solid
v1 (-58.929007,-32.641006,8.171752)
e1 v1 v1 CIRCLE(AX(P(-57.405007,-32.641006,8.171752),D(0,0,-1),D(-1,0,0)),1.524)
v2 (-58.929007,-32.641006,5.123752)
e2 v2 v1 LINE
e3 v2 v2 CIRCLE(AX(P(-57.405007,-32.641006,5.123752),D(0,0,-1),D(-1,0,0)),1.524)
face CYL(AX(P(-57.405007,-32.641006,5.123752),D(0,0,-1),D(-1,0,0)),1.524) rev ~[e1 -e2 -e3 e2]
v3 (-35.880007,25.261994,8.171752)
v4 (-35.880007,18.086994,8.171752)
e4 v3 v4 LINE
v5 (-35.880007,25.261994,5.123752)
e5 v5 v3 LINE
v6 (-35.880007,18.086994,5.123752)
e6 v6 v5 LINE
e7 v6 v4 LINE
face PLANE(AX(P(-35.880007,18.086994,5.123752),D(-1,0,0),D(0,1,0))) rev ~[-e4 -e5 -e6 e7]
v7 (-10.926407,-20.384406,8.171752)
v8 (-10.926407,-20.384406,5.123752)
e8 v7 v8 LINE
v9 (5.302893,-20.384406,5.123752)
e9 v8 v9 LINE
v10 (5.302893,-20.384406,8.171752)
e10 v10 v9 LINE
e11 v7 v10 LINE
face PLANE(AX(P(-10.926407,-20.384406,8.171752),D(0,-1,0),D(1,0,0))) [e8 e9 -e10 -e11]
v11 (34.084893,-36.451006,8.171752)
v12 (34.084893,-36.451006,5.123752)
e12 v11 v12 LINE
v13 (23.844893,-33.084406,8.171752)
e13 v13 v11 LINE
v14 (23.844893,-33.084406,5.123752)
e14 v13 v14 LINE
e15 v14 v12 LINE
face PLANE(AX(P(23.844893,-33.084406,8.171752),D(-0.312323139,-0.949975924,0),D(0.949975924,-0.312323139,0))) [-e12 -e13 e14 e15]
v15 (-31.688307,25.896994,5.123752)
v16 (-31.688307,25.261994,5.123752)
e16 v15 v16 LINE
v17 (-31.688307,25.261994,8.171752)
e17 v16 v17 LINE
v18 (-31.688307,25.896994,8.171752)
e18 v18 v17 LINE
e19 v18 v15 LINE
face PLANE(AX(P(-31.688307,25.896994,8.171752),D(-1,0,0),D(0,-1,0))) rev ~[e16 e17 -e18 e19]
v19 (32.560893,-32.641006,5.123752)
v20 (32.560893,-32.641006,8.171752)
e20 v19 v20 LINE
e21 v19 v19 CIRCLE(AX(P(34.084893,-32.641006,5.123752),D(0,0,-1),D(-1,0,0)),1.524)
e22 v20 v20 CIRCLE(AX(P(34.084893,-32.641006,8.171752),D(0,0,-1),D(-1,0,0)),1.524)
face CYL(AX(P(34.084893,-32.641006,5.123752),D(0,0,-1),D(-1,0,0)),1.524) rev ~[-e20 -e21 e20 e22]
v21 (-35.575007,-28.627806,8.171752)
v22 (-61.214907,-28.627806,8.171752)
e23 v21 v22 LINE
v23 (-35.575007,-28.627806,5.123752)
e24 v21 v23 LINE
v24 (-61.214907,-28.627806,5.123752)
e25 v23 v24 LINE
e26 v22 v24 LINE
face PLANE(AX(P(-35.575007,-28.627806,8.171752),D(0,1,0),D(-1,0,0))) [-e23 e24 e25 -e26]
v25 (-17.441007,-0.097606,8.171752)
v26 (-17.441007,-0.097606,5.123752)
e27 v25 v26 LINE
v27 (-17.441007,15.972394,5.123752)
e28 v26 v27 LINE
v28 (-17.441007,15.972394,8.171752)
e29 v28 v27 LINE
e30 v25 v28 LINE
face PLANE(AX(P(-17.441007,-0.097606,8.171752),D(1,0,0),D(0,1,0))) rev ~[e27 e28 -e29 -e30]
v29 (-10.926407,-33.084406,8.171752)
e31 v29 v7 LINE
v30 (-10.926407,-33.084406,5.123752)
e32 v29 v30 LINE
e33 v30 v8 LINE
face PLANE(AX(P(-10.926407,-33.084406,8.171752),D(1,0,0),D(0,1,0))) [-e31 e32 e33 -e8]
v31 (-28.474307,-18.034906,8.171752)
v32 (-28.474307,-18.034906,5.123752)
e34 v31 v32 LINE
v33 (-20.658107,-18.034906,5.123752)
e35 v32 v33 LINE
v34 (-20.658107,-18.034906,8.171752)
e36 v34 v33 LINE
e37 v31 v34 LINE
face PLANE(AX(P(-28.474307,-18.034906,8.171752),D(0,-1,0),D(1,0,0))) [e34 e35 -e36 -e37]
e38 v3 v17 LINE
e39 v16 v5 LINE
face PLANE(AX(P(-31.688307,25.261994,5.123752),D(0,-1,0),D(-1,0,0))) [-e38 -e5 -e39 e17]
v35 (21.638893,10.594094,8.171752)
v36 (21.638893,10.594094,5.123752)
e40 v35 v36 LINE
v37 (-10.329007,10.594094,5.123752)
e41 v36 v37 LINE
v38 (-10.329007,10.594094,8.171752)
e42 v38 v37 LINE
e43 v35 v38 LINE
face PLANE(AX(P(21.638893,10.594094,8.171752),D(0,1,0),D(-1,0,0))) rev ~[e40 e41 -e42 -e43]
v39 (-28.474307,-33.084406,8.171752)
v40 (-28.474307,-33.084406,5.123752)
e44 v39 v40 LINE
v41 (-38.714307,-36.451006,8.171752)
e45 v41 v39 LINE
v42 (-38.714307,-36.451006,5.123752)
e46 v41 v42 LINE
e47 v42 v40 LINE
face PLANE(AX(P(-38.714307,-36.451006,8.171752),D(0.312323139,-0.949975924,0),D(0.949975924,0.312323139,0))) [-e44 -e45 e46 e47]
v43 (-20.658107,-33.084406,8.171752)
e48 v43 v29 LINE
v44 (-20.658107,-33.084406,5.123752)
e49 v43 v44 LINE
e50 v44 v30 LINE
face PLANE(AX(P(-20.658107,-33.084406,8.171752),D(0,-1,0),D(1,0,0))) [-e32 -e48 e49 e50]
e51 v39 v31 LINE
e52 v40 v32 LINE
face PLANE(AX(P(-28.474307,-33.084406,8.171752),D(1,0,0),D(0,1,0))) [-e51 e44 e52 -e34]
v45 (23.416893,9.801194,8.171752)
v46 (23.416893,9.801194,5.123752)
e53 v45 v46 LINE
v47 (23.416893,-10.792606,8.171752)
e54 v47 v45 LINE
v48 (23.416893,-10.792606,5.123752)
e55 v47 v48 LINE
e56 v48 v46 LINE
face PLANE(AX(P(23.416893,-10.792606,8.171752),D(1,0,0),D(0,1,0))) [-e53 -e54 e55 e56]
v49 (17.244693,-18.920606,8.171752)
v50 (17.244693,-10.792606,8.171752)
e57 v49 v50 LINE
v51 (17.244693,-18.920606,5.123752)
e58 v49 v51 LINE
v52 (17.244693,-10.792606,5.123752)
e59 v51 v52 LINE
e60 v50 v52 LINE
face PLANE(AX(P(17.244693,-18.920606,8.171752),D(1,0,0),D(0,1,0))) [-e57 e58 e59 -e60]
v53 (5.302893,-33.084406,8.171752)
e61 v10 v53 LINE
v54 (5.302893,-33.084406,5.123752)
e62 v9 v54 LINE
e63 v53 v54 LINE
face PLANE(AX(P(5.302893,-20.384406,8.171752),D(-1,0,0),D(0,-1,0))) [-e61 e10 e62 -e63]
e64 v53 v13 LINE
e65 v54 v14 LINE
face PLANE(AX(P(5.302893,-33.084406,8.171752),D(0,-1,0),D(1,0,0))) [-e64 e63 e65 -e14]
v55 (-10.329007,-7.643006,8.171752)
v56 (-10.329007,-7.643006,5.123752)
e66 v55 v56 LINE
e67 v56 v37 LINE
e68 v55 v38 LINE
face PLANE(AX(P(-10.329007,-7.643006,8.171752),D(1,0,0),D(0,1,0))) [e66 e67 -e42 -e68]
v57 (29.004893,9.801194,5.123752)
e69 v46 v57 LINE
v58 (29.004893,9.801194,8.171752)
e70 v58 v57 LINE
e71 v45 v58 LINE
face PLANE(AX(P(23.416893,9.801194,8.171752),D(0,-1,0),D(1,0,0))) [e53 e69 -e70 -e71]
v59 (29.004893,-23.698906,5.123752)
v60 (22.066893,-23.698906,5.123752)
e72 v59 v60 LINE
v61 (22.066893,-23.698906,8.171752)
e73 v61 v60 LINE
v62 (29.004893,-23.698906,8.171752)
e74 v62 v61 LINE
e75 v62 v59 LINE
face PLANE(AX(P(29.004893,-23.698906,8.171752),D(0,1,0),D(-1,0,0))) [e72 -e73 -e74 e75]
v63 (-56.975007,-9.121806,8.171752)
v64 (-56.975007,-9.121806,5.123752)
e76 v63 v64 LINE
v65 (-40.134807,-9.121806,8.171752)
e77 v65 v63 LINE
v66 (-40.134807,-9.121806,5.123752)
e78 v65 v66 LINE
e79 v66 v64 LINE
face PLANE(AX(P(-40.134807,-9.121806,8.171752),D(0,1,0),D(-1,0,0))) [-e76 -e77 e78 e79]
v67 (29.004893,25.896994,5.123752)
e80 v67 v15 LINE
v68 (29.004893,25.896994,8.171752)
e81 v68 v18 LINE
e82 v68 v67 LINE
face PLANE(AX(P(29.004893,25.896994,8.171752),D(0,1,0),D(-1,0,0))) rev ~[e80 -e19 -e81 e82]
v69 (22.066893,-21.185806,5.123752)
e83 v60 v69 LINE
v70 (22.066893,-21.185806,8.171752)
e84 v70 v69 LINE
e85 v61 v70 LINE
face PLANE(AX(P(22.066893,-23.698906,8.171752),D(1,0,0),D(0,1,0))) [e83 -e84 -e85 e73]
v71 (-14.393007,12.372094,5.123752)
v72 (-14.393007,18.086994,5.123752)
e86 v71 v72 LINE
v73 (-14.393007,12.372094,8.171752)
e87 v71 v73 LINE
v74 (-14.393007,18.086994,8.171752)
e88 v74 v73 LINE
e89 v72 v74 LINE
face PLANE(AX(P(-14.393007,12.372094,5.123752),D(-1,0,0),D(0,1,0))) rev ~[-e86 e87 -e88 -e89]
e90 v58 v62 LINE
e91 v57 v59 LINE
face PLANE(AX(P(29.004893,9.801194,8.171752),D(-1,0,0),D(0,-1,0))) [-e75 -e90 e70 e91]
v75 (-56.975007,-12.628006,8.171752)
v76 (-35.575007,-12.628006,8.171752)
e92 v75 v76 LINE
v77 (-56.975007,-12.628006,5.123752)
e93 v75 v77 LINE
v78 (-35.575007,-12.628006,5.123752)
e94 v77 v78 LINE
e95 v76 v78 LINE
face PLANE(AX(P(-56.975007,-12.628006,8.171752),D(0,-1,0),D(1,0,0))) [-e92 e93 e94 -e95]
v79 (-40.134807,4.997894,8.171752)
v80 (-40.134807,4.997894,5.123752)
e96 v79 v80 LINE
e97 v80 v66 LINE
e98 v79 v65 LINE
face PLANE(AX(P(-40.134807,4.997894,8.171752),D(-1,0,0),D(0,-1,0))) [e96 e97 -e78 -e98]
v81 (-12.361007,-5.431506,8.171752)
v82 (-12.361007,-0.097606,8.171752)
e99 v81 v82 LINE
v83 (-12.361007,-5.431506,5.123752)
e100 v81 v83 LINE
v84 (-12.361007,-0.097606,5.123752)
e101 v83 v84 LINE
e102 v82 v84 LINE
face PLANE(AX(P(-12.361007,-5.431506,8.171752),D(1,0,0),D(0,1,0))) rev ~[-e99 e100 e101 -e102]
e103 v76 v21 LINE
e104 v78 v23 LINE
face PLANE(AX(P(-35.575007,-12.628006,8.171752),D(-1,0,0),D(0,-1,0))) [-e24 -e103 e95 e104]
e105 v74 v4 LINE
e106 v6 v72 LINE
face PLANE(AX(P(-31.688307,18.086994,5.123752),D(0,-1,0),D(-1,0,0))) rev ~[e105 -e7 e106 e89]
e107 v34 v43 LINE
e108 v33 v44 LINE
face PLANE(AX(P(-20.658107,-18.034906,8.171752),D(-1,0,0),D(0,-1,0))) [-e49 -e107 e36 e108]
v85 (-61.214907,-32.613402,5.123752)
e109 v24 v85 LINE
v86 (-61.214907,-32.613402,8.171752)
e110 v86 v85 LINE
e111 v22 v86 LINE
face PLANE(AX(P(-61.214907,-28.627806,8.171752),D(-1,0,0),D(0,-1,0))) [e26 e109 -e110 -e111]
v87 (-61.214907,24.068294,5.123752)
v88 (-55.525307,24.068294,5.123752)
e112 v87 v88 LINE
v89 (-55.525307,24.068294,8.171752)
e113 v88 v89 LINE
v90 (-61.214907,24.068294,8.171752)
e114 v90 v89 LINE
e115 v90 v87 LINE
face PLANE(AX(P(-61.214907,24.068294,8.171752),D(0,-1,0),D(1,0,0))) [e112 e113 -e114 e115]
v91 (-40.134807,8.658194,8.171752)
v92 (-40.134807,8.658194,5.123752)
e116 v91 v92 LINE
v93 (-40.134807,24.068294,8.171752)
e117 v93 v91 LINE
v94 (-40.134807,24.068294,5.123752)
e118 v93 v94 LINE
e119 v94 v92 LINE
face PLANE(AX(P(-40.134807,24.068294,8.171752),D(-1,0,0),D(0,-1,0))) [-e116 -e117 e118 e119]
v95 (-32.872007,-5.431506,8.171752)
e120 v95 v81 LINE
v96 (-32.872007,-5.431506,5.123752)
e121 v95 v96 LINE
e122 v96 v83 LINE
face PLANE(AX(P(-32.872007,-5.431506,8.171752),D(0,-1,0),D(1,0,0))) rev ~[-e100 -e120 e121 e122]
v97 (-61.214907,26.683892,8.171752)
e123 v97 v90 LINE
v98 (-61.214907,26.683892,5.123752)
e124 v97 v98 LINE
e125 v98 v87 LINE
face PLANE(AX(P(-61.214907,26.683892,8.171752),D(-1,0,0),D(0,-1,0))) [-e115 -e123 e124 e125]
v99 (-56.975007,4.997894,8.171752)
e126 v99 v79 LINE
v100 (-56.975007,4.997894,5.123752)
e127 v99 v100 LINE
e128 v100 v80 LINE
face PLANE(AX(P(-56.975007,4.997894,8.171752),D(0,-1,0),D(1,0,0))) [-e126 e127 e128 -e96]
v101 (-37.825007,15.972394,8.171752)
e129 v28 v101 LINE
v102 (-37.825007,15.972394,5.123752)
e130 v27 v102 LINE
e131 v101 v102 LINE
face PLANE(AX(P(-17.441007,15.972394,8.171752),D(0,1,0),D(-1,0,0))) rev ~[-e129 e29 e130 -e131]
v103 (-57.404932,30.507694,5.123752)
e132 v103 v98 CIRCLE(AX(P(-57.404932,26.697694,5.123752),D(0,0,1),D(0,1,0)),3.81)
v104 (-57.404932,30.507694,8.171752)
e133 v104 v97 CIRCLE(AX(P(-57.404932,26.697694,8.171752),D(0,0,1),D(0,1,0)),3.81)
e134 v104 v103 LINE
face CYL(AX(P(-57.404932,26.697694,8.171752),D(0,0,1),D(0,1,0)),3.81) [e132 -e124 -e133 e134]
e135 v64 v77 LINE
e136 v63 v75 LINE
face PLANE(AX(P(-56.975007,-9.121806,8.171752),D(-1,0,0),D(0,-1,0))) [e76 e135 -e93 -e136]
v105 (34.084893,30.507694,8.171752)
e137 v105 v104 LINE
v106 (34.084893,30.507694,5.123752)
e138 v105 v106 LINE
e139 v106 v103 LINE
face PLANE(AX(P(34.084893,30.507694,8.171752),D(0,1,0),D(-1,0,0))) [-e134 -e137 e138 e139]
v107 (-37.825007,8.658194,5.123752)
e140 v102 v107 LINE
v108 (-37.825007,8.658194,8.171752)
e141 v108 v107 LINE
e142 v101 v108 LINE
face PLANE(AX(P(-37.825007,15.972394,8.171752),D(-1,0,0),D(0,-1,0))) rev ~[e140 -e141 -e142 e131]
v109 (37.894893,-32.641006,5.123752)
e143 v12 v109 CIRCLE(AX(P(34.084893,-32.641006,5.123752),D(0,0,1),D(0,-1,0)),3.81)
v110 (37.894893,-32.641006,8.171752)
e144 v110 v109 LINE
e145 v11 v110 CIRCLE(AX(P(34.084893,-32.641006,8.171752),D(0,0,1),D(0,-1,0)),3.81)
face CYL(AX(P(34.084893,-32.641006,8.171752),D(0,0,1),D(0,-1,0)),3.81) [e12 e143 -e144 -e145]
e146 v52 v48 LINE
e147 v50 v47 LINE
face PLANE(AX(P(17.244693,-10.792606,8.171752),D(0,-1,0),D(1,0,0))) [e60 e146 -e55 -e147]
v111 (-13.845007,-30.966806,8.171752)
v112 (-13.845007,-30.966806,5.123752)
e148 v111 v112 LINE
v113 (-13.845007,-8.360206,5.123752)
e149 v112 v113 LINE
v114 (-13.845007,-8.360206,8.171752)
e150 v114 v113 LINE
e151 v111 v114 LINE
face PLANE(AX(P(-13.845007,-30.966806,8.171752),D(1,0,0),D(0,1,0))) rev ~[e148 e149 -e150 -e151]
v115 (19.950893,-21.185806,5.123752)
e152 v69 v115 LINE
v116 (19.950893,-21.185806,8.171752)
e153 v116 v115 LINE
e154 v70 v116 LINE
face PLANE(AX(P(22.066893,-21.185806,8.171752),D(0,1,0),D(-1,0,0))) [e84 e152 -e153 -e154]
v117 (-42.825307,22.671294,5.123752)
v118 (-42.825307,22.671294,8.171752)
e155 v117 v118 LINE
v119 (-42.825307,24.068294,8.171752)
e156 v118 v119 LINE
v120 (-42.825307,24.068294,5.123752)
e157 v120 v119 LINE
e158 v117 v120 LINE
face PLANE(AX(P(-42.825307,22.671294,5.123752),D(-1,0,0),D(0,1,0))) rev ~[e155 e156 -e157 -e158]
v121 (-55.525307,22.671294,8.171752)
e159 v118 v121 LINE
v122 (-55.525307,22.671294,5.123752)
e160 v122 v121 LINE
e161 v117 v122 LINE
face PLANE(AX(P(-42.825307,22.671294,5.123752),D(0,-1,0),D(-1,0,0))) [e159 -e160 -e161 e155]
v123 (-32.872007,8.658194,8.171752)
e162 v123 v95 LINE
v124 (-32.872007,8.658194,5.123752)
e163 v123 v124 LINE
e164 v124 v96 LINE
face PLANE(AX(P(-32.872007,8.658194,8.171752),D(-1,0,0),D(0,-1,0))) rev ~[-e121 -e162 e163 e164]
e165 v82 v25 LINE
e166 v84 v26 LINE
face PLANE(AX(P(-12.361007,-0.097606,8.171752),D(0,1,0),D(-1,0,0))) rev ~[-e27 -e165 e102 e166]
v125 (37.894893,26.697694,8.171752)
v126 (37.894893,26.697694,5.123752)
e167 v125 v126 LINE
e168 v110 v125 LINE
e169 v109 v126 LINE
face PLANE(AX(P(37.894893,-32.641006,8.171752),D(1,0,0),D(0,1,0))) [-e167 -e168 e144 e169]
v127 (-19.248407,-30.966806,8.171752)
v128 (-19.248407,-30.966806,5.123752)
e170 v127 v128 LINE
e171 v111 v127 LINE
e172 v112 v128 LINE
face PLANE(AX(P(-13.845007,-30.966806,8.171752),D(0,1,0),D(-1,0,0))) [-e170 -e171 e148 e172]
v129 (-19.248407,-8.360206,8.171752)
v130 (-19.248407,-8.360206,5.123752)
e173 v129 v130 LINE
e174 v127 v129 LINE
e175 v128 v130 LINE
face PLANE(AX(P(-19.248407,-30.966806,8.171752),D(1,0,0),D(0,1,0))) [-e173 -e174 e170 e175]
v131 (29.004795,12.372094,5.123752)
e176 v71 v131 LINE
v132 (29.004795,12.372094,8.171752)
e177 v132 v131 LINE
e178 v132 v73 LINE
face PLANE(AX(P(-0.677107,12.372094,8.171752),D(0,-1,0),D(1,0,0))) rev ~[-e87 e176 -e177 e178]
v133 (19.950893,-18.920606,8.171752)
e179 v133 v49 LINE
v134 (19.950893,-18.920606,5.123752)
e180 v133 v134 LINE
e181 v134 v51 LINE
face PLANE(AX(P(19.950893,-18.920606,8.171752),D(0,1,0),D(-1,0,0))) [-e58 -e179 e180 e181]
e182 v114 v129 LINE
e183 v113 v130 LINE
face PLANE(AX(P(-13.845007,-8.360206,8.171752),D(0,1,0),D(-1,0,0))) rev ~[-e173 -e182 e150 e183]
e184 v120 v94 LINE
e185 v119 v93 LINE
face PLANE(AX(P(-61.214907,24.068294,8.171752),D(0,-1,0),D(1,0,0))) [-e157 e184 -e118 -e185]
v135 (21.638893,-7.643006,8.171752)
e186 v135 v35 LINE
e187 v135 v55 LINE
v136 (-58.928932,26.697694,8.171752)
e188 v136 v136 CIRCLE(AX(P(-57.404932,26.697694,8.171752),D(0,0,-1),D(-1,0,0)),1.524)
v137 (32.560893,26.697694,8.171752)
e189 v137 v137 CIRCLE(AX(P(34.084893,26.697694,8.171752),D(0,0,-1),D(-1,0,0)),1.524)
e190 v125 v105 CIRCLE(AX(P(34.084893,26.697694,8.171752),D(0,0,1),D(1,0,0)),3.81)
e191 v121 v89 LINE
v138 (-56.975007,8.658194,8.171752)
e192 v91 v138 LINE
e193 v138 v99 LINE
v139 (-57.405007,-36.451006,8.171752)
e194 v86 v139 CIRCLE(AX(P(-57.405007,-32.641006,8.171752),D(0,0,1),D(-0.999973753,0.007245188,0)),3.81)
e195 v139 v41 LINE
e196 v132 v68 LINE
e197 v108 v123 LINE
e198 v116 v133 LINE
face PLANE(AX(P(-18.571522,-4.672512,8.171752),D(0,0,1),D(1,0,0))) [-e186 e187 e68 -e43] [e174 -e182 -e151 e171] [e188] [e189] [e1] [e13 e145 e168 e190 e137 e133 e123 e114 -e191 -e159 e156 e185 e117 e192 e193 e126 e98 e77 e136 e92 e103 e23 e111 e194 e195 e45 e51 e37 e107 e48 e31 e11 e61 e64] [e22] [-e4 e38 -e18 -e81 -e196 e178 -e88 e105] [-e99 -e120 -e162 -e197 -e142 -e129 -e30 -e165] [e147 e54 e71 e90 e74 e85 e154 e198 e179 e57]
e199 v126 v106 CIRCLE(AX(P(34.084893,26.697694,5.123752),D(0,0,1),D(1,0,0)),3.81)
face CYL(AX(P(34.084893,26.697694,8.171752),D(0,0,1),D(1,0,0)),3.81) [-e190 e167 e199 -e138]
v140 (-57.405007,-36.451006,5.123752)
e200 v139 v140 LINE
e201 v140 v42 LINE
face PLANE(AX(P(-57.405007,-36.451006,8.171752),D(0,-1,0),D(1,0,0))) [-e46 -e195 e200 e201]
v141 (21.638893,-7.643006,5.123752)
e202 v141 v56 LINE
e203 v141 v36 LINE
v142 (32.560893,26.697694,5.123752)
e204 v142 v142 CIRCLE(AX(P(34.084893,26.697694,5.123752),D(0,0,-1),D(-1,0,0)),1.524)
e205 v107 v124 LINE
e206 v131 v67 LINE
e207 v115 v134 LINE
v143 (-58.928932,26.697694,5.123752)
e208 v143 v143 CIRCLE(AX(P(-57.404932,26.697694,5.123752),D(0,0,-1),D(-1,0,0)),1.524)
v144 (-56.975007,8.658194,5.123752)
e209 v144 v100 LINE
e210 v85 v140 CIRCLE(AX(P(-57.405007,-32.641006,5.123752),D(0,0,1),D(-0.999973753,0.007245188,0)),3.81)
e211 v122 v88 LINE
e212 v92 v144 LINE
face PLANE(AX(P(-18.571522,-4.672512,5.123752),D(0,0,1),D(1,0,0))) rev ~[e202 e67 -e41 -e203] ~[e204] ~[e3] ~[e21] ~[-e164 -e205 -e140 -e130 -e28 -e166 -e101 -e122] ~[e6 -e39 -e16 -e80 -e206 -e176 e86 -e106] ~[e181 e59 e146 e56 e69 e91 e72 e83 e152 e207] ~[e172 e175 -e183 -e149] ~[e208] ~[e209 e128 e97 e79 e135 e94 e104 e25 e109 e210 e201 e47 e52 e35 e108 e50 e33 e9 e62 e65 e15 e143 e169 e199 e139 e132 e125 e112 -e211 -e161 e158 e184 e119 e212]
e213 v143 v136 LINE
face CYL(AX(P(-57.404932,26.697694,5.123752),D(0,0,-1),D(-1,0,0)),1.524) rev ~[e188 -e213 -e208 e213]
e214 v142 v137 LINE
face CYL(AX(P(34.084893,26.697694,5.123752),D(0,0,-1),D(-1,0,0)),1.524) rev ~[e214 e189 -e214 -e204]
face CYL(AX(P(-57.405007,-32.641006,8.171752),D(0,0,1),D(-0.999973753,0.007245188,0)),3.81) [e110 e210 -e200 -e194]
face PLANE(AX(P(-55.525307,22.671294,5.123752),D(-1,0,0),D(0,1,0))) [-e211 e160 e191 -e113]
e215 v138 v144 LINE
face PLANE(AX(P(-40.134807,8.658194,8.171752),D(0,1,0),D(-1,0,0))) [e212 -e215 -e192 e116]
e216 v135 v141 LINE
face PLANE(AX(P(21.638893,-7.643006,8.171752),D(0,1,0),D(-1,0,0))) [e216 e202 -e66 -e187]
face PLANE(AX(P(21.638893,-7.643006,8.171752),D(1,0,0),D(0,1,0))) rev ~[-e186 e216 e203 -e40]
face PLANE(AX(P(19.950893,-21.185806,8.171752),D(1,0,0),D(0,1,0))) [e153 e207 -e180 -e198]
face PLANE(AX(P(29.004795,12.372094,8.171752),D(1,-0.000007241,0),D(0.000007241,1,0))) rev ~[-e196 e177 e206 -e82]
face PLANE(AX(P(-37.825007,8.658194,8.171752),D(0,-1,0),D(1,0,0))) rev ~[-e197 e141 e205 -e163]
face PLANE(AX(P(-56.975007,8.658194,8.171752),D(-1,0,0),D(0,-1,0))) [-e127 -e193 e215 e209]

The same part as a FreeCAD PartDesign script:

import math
import FreeCAD as App
import Part
import Sketcher
from FreeCAD import Vector
Q = App.Units.Quantity


def add_polygon(sketch, points):
    """Adds a closed chain of lines whose ends are joined by coincident constraints."""
    first, n = sketch.GeometryCount, len(points)
    for a, b in zip(points, points[1:] + points[:1]):
        sketch.addGeometry(Part.LineSegment(App.Vector(*a, 0), App.Vector(*b, 0)), False)
    for i in range(n):
        sketch.addConstraint(Sketcher.Constraint("Coincident", first + i, 2, first + (i + 1) % n, 1))

doc = App.newDocument("Part")
params = doc.addObject("Spreadsheet::Sheet", "Params")
for row, (alias, value) in enumerate([
    ("sketch1_radius", "0.15 in"),
    ("sketch1_width", "0.2 in"),
    ("sketch1_height", "0.5 in"),
    ("sketch1_width2", "0.73 in"),
    ("sketch1_width3", "0.22 in"),
    ("pad1_length", "0.12 in"),
    ("sketch3_diameter", "0.12 in"),
    ("sketch5_width", "0.5 in"),
    ("sketch5_height", "0.055 in"),
    ("pad2_length", "0.12 in"),
], start=1):
    params.set(f"A{row}", alias)
    params.set(f"B{row}", "=" + value)
    params.setAlias(f"B{row}", alias)

body = doc.addObject("PartDesign::Body", "Body")

sketch1 = body.newObject("Sketcher::SketchObject", "Sketch")
sketch1.AttachmentSupport = (doc.getObject("XY_Plane"), [""])
sketch1.MapMode = "FlatFace"
sketch1.AttachmentOffset = App.Placement(Vector(0, 0, 8.171752), App.Rotation())
sketch1.addGeometry(Part.LineSegment(Vector(34.1, -36.5, 0), Vector(23.8, -33.1, 0)), False)
sketch1.addGeometry(Part.LineSegment(Vector(23.8, -33.1, 0), Vector(5.3, -33.1, 0)), False)
sketch1.addGeometry(Part.LineSegment(Vector(5.3, -33.1, 0), Vector(5.3, -20.4, 0)), False)
sketch1.addGeometry(Part.LineSegment(Vector(5.3, -20.4, 0), Vector(-10.9, -20.4, 0)), False)
sketch1.addGeometry(Part.LineSegment(Vector(-10.9, -20.4, 0), Vector(-10.9, -33.1, 0)), False)
sketch1.addGeometry(Part.LineSegment(Vector(-10.9, -33.1, 0), Vector(-20.7, -33.1, 0)), False)
sketch1.addGeometry(Part.LineSegment(Vector(-20.7, -33.1, 0), Vector(-20.7, -18, 0)), False)
sketch1.addGeometry(Part.LineSegment(Vector(-20.7, -18, 0), Vector(-28.5, -18, 0)), False)
sketch1.addGeometry(Part.LineSegment(Vector(-28.5, -18, 0), Vector(-28.5, -33.1, 0)), False)
sketch1.addGeometry(Part.LineSegment(Vector(-28.5, -33.1, 0), Vector(-38.7, -36.5, 0)), False)
sketch1.addGeometry(Part.LineSegment(Vector(-38.7, -36.5, 0), Vector(-57.4, -36.5, 0)), False)
sketch1.addGeometry(Part.ArcOfCircle(Part.Circle(Vector(-57.4, -32.6, 0), Vector(0, 0, 1), 3.8), math.radians(180), math.radians(270)), False)
sketch1.addGeometry(Part.LineSegment(Vector(-61.2, -32.6, 0), Vector(-61.2, -28.6, 0)), False)
sketch1.addGeometry(Part.LineSegment(Vector(-61.2, -28.6, 0), Vector(-35.6, -28.6, 0)), False)
sketch1.addGeometry(Part.LineSegment(Vector(-35.6, -28.6, 0), Vector(-35.6, -12.6, 0)), False)
sketch1.addGeometry(Part.LineSegment(Vector(-35.6, -12.6, 0), Vector(-57, -12.6, 0)), False)
sketch1.addGeometry(Part.LineSegment(Vector(-57, -12.6, 0), Vector(-57, -9.1, 0)), False)
sketch1.addGeometry(Part.LineSegment(Vector(-57, -9.1, 0), Vector(-40.1, -9.1, 0)), False)
sketch1.addGeometry(Part.LineSegment(Vector(-40.1, -9.1, 0), Vector(-40.1, 5, 0)), False)
sketch1.addGeometry(Part.LineSegment(Vector(-40.1, 5, 0), Vector(-57, 5, 0)), False)
sketch1.addGeometry(Part.LineSegment(Vector(-57, 5, 0), Vector(-57, 8.7, 0)), False)
sketch1.addGeometry(Part.LineSegment(Vector(-57, 8.7, 0), Vector(-40.1, 8.7, 0)), False)
sketch1.addGeometry(Part.LineSegment(Vector(-40.1, 8.7, 0), Vector(-40.1, 24.1, 0)), False)
sketch1.addGeometry(Part.LineSegment(Vector(-40.1, 24.1, 0), Vector(-61.2, 24.1, 0)), False)
sketch1.addGeometry(Part.LineSegment(Vector(-61.2, 24.1, 0), Vector(-61.2, 26.7, 0)), False)
sketch1.addGeometry(Part.ArcOfCircle(Part.Circle(Vector(-57.4, 26.7, 0), Vector(0, 0, 1), 3.8), math.radians(90), math.radians(180)), False)
sketch1.addGeometry(Part.LineSegment(Vector(-57.4, 30.5, 0), Vector(34.1, 30.5, 0)), False)
sketch1.addGeometry(Part.ArcOfCircle(Part.Circle(Vector(34.1, 26.7, 0), Vector(0, 0, 1), 3.8), math.radians(0), math.radians(90)), False)
sketch1.addGeometry(Part.LineSegment(Vector(37.9, 26.7, 0), Vector(37.9, -32.6, 0)), False)
sketch1.addGeometry(Part.ArcOfCircle(Part.Circle(Vector(34.1, -32.6, 0), Vector(0, 0, 1), 3.8), math.radians(-90), math.radians(0)), False)
add_polygon(sketch1, [(-13.8, -31), (-13.8, -8.4), (-19.2, -8.4), (-19.2, -31)])
add_polygon(sketch1, [(29, -23.7), (29, 9.8), (23.4, 9.8), (23.4, -10.8), (17.2, -10.8), (17.2, -18.9), (20, -18.9), (20, -21.2), (22.1, -21.2), (22.1, -23.7)])
add_polygon(sketch1, [(-12.4, -0.1), (-17.4, -0.1), (-17.4, 16), (-37.8, 16), (-37.8, 8.7), (-32.9, 8.7), (-32.9, -5.4), (-12.4, -5.4)])
add_polygon(sketch1, [(21.6, -7.6), (21.6, 10.6), (-10.3, 10.6), (-10.3, -7.6)])
add_polygon(sketch1, [(-0.7, 12.4), (29, 12.4), (29, 25.9), (-31.7, 25.9), (-31.7, 18.1), (-0.7, 18.1)])
sketch1.addConstraint(Sketcher.Constraint("Coincident", 0, 2, 1, 1))
sketch1.addConstraint(Sketcher.Constraint("Coincident", 1, 2, 2, 1))
sketch1.addConstraint(Sketcher.Constraint("Coincident", 2, 2, 3, 1))
sketch1.addConstraint(Sketcher.Constraint("Coincident", 3, 2, 4, 1))
sketch1.addConstraint(Sketcher.Constraint("Coincident", 4, 2, 5, 1))
sketch1.addConstraint(Sketcher.Constraint("Coincident", 5, 2, 6, 1))
sketch1.addConstraint(Sketcher.Constraint("Coincident", 6, 2, 7, 1))
sketch1.addConstraint(Sketcher.Constraint("Coincident", 7, 2, 8, 1))
sketch1.addConstraint(Sketcher.Constraint("Coincident", 8, 2, 9, 1))
sketch1.addConstraint(Sketcher.Constraint("Coincident", 9, 2, 10, 1))
sketch1.addConstraint(Sketcher.Constraint("Tangent", 10, 2, 11, 2))
sketch1.addConstraint(Sketcher.Constraint("Coincident", 11, 1, 12, 1))
sketch1.addConstraint(Sketcher.Constraint("Coincident", 12, 2, 13, 1))
sketch1.addConstraint(Sketcher.Constraint("Coincident", 13, 2, 14, 1))
sketch1.addConstraint(Sketcher.Constraint("Coincident", 14, 2, 15, 1))
sketch1.addConstraint(Sketcher.Constraint("Coincident", 15, 2, 16, 1))
sketch1.addConstraint(Sketcher.Constraint("Coincident", 16, 2, 17, 1))
sketch1.addConstraint(Sketcher.Constraint("Coincident", 17, 2, 18, 1))
sketch1.addConstraint(Sketcher.Constraint("Coincident", 18, 2, 19, 1))
sketch1.addConstraint(Sketcher.Constraint("Coincident", 19, 2, 20, 1))
sketch1.addConstraint(Sketcher.Constraint("Coincident", 20, 2, 21, 1))
sketch1.addConstraint(Sketcher.Constraint("Coincident", 21, 2, 22, 1))
sketch1.addConstraint(Sketcher.Constraint("Coincident", 22, 2, 23, 1))
sketch1.addConstraint(Sketcher.Constraint("Coincident", 23, 2, 24, 1))
sketch1.addConstraint(Sketcher.Constraint("Coincident", 24, 2, 25, 2))
sketch1.addConstraint(Sketcher.Constraint("Tangent", 25, 1, 26, 1))
sketch1.addConstraint(Sketcher.Constraint("Tangent", 26, 2, 27, 2))
sketch1.addConstraint(Sketcher.Constraint("Tangent", 27, 1, 28, 1))
sketch1.addConstraint(Sketcher.Constraint("Tangent", 28, 2, 29, 2))
sketch1.addConstraint(Sketcher.Constraint("Coincident", 29, 1, 0, 1))
sketch1.addConstraint(Sketcher.Constraint("Horizontal", 1))
sketch1.addConstraint(Sketcher.Constraint("Vertical", 2))
sketch1.addConstraint(Sketcher.Constraint("Horizontal", 3))
sketch1.addConstraint(Sketcher.Constraint("Vertical", 4))
sketch1.addConstraint(Sketcher.Constraint("Horizontal", 5))
sketch1.addConstraint(Sketcher.Constraint("Vertical", 6))
sketch1.addConstraint(Sketcher.Constraint("Horizontal", 7))
sketch1.addConstraint(Sketcher.Constraint("Vertical", 8))
sketch1.addConstraint(Sketcher.Constraint("Horizontal", 10))
sketch1.addConstraint(Sketcher.Constraint("Vertical", 12))
sketch1.addConstraint(Sketcher.Constraint("Horizontal", 13))
sketch1.addConstraint(Sketcher.Constraint("Vertical", 14))
sketch1.addConstraint(Sketcher.Constraint("Horizontal", 15))
sketch1.addConstraint(Sketcher.Constraint("Vertical", 16))
sketch1.addConstraint(Sketcher.Constraint("Horizontal", 17))
sketch1.addConstraint(Sketcher.Constraint("Vertical", 18))
sketch1.addConstraint(Sketcher.Constraint("Horizontal", 19))
sketch1.addConstraint(Sketcher.Constraint("Vertical", 20))
sketch1.addConstraint(Sketcher.Constraint("Horizontal", 21))
sketch1.addConstraint(Sketcher.Constraint("Vertical", 22))
sketch1.addConstraint(Sketcher.Constraint("Horizontal", 23))
sketch1.addConstraint(Sketcher.Constraint("Vertical", 24))
sketch1.addConstraint(Sketcher.Constraint("Horizontal", 26))
sketch1.addConstraint(Sketcher.Constraint("Vertical", 28))
sketch1.addConstraint(Sketcher.Constraint("Vertical", 30))
sketch1.addConstraint(Sketcher.Constraint("Horizontal", 31))
sketch1.addConstraint(Sketcher.Constraint("Vertical", 32))
sketch1.addConstraint(Sketcher.Constraint("Horizontal", 33))
sketch1.addConstraint(Sketcher.Constraint("Vertical", 34))
sketch1.addConstraint(Sketcher.Constraint("Horizontal", 35))
sketch1.addConstraint(Sketcher.Constraint("Vertical", 36))
sketch1.addConstraint(Sketcher.Constraint("Horizontal", 37))
sketch1.addConstraint(Sketcher.Constraint("Vertical", 38))
sketch1.addConstraint(Sketcher.Constraint("Horizontal", 39))
sketch1.addConstraint(Sketcher.Constraint("Vertical", 40))
sketch1.addConstraint(Sketcher.Constraint("Horizontal", 41))
sketch1.addConstraint(Sketcher.Constraint("Vertical", 42))
sketch1.addConstraint(Sketcher.Constraint("Horizontal", 43))
sketch1.addConstraint(Sketcher.Constraint("Horizontal", 44))
sketch1.addConstraint(Sketcher.Constraint("Vertical", 45))
sketch1.addConstraint(Sketcher.Constraint("Horizontal", 46))
sketch1.addConstraint(Sketcher.Constraint("Vertical", 47))
sketch1.addConstraint(Sketcher.Constraint("Horizontal", 48))
sketch1.addConstraint(Sketcher.Constraint("Vertical", 49))
sketch1.addConstraint(Sketcher.Constraint("Horizontal", 50))
sketch1.addConstraint(Sketcher.Constraint("Vertical", 51))
sketch1.addConstraint(Sketcher.Constraint("Vertical", 52))
sketch1.addConstraint(Sketcher.Constraint("Horizontal", 53))
sketch1.addConstraint(Sketcher.Constraint("Vertical", 54))
sketch1.addConstraint(Sketcher.Constraint("Horizontal", 55))
sketch1.addConstraint(Sketcher.Constraint("Horizontal", 56))
sketch1.addConstraint(Sketcher.Constraint("Horizontal", 58))
sketch1.addConstraint(Sketcher.Constraint("Vertical", 59))
sketch1.addConstraint(Sketcher.Constraint("Horizontal", 60))
sketch1.addConstraint(Sketcher.Constraint("Vertical", 61))
sketch1.addConstraint(Sketcher.Constraint("Equal", 11, 25))
sketch1.addConstraint(Sketcher.Constraint("Equal", 25, 27))
sketch1.addConstraint(Sketcher.Constraint("Equal", 27, 29))
sketch1.addConstraint(Sketcher.Constraint("Horizontal", 11, 3, 29, 3))
sketch1.addConstraint(Sketcher.Constraint("Horizontal", 1, 2, 4, 2))
sketch1.addConstraint(Sketcher.Constraint("Horizontal", 5, 2, 8, 2))
sketch1.addConstraint(Sketcher.Constraint("Horizontal", 21, 2, 47, 2))
sketch1.addConstraint(Sketcher.Constraint("Vertical", 16, 2, 19, 2))
sketch1.addConstraint(Sketcher.Constraint("Vertical", 18, 2, 21, 2))
sketch1.addConstraint(Sketcher.Constraint("Vertical", 12, 2, 23, 2))
sketch1.addConstraint(Sketcher.Constraint("Vertical", 26, 2, 29, 1))
sketch1.addConstraint(Sketcher.Constraint("Vertical", 43, 2, 57, 2))
sketch1.addConstraint(Sketcher.Constraint("Equal", 0, 9))
sketch1.addConstraint(Sketcher.Constraint("Radius", 11, Q("0.15 in")))
sketch1.addConstraint(Sketcher.Constraint("DistanceX", 44, 2, 44, 1, Q("0.2 in")))
sketch1.addConstraint(Sketcher.Constraint("DistanceY", 2, 1, 2, 2, Q("0.5 in")))
sketch1.addConstraint(Sketcher.Constraint("DistanceX", 1, 2, 1, 1, Q("0.73 in")))
sketch1.addConstraint(Sketcher.Constraint("DistanceX", 35, 2, 35, 1, Q("0.22 in")))
sketch1.addConstraint(Sketcher.Constraint("DistanceY", 38, 2, 38, 1, Q("0.32 in")))
sketch1.addConstraint(Sketcher.Constraint("DistanceX", 17, 1, 17, 2, Q("0.663 in")))
sketch1.addConstraint(Sketcher.Constraint("DistanceX", 37, 2, 37, 1, Q("0.243 in")))
sketch1.addConstraint(Sketcher.Constraint("DistanceX", 48, 1, 48, 2, Q("0.195 in")))
sketch1.addConstraint(Sketcher.Constraint("DistanceY", 6, 1, 6, 2, Q("0.5925 in")))
sketch1.addConstraint(Sketcher.Constraint("DistanceX", 3, 2, 3, 1, Q("16.2293 mm")))
sketch1.addConstraint(Sketcher.Constraint("DistanceX", 5, 2, 5, 1, Q("9.7317 mm")))
sketch1.addConstraint(Sketcher.Constraint("DistanceX", 7, 2, 7, 1, Q("7.8162 mm")))
sketch1.addConstraint(Sketcher.Constraint("DistanceX", 10, 2, 10, 1, Q("18.6907 mm")))
sketch1.addConstraint(Sketcher.Constraint("DistanceX", 13, 1, 13, 2, Q("25.6399 mm")))
sketch1.addConstraint(Sketcher.Constraint("DistanceX", 15, 2, 15, 1, Q("21.4 mm")))
sketch1.addConstraint(Sketcher.Constraint("DistanceX", 31, 2, 31, 1, Q("5.4034 mm")))
sketch1.addConstraint(Sketcher.Constraint("DistanceX", 39, 1, 39, 2, Q("2.7062 mm")))
sketch1.addConstraint(Sketcher.Constraint("DistanceX", 41, 1, 41, 2, Q("2.116 mm")))
sketch1.addConstraint(Sketcher.Constraint("DistanceX", 46, 2, 46, 1, Q("20.384 mm")))
sketch1.addConstraint(Sketcher.Constraint("DistanceX", 53, 2, 53, 1, Q("31.9679 mm")))
sketch1.addConstraint(Sketcher.Constraint("DistanceX", 58, 2, 58, 1, Q("60.6932 mm")))
sketch1.addConstraint(Sketcher.Constraint("DistanceX", 60, 1, 60, 2, Q("31.0112 mm")))
sketch1.addConstraint(Sketcher.Constraint("DistanceY", 14, 1, 14, 2, Q("15.9998 mm")))
sketch1.addConstraint(Sketcher.Constraint("DistanceY", 16, 1, 16, 2, Q("3.5062 mm")))
sketch1.addConstraint(Sketcher.Constraint("DistanceY", 18, 1, 18, 2, Q("14.1197 mm")))
sketch1.addConstraint(Sketcher.Constraint("DistanceY", 20, 1, 20, 2, Q("3.6603 mm")))
sketch1.addConstraint(Sketcher.Constraint("DistanceY", 22, 1, 22, 2, Q("15.4101 mm")))
sketch1.addConstraint(Sketcher.Constraint("DistanceY", 28, 2, 28, 1, Q("59.3387 mm")))
sketch1.addConstraint(Sketcher.Constraint("DistanceY", 30, 1, 30, 2, Q("22.6066 mm")))
sketch1.addConstraint(Sketcher.Constraint("DistanceY", 34, 1, 34, 2, Q("33.5001 mm")))
sketch1.addConstraint(Sketcher.Constraint("DistanceY", 36, 2, 36, 1, Q("20.5938 mm")))
sketch1.addConstraint(Sketcher.Constraint("DistanceY", 40, 2, 40, 1, Q("2.2652 mm")))
sketch1.addConstraint(Sketcher.Constraint("DistanceY", 45, 1, 45, 2, Q("16.07 mm")))
sketch1.addConstraint(Sketcher.Constraint("DistanceY", 47, 2, 47, 1, Q("7.3142 mm")))
sketch1.addConstraint(Sketcher.Constraint("DistanceY", 49, 2, 49, 1, Q("14.0897 mm")))
sketch1.addConstraint(Sketcher.Constraint("DistanceY", 52, 1, 52, 2, Q("18.2371 mm")))
sketch1.addConstraint(Sketcher.Constraint("DistanceY", 59, 2, 59, 1, Q("7.81 mm")))
sketch1.addConstraint(Sketcher.Constraint("DistanceY", 61, 2, 61, 1, Q("5.7149 mm")))
sketch1.addConstraint(Sketcher.Constraint("DistanceY", 11, 1, -1, 1, Q("32.613402 mm")))
sketch1.addConstraint(Sketcher.Constraint("Distance", 0, Q("10.779221 mm")))
sketch1.addConstraint(Sketcher.Constraint("DistanceX", 26, 1, 26, 2, Q("91.489825 mm")))
sketch1.addConstraint(Sketcher.Constraint("DistanceX", 56, 1, 56, 2, Q("29.681902 mm")))
sketch1.addConstraint(Sketcher.Constraint("DistanceY", 12, 1, 12, 2, Q("3.985596 mm")))
sketch1.addConstraint(Sketcher.Constraint("DistanceY", 24, 1, 24, 2, Q("2.615598 mm")))
sketch1.addConstraint(Sketcher.Constraint("DistanceX", 11, 3, -1, 1, Q("57.405007 mm")))
sketch1.addConstraint(Sketcher.Constraint("DistanceY", 11, 3, -1, 1, Q("32.641006 mm")))
sketch1.addConstraint(Sketcher.Constraint("DistanceX", 30, 2, -1, 1, Q("13.845007 mm")))
sketch1.addConstraint(Sketcher.Constraint("DistanceY", 30, 2, -1, 1, Q("8.360206 mm")))
sketch1.addConstraint(Sketcher.Constraint("DistanceX", -1, 1, 34, 2, Q("29.004893 mm")))
sketch1.addConstraint(Sketcher.Constraint("DistanceY", -1, 1, 34, 2, Q("9.801194 mm")))
sketch1.addConstraint(Sketcher.Constraint("DistanceX", 44, 2, -1, 1, Q("17.441007 mm")))
sketch1.addConstraint(Sketcher.Constraint("DistanceX", -1, 1, 52, 2, Q("21.638893 mm")))
sketch1.addConstraint(Sketcher.Constraint("DistanceY", -1, 1, 52, 2, Q("10.594094 mm")))
sketch1.addConstraint(Sketcher.Constraint("DistanceY", -1, 1, 56, 2, Q("12.372094 mm")))
sketch1.setExpression("Constraints[130]", "Params.sketch1_radius")
sketch1.setExpression("Constraints[131]", "Params.sketch1_width")
sketch1.setExpression("Constraints[132]", "Params.sketch1_height")
sketch1.setExpression("Constraints[133]", "Params.sketch1_width2")
sketch1.setExpression("Constraints[134]", "Params.sketch1_width3")
pad1 = body.newObject("PartDesign::Pad", "Pad")
pad1.Profile = sketch1
pad1.setExpression("Length", "Params.pad1_length")
pad1.Reversed = True

sketch2 = body.newObject("Sketcher::SketchObject", "Sketch001")
sketch2.AttachmentSupport = (doc.getObject("XY_Plane"), [""])
sketch2.MapMode = "FlatFace"
sketch2.AttachmentOffset = App.Placement(Vector(0, 0, 5.123752), App.Rotation())
sketch2.addGeometry(Part.Circle(Vector(-57.4, -32.6, 0), Vector(0, 0, 1), 1.3), False)
sketch2.addGeometry(Part.Circle(Vector(34.1, -32.6, 0), Vector(0, 0, 1), 1.3), False)
sketch2.addGeometry(Part.Circle(Vector(34.1, 26.7, 0), Vector(0, 0, 1), 1.3), False)
sketch2.addGeometry(Part.Circle(Vector(-57.4, 26.7, 0), Vector(0, 0, 1), 1.3), False)
sketch2.addConstraint(Sketcher.Constraint("Equal", 0, 1))
sketch2.addConstraint(Sketcher.Constraint("Equal", 1, 2))
sketch2.addConstraint(Sketcher.Constraint("Equal", 2, 3))
sketch2.addConstraint(Sketcher.Constraint("Horizontal", 0, 3, 1, 3))
sketch2.addConstraint(Sketcher.Constraint("Horizontal", 2, 3, 3, 3))
sketch2.addConstraint(Sketcher.Constraint("Vertical", 1, 3, 2, 3))
sketch2.addConstraint(Sketcher.Constraint("Diameter", 0, Q("2.676491 mm")))
sketch2.addConstraint(Sketcher.Constraint("DistanceX", 0, 3, 1, 3, Q("91.4899 mm")))
sketch2.addConstraint(Sketcher.Constraint("DistanceY", 1, 3, 2, 3, Q("59.3387 mm")))
sketch2.addConstraint(Sketcher.Constraint("DistanceX", 0, 3, -1, 1, Q("57.405007 mm")))
sketch2.addConstraint(Sketcher.Constraint("DistanceY", 0, 3, -1, 1, Q("32.641006 mm")))
sketch2.addConstraint(Sketcher.Constraint("DistanceX", 3, 3, -1, 1, Q("57.404932 mm")))
pocket1 = body.newObject("PartDesign::Pocket", "Pocket")
pocket1.Profile = sketch2
pocket1.Type = "ThroughAll"
pocket1.Reversed = True

sketch3 = body.newObject("Sketcher::SketchObject", "Sketch002")
sketch3.AttachmentSupport = (doc.getObject("XY_Plane"), [""])
sketch3.MapMode = "FlatFace"
sketch3.AttachmentOffset = App.Placement(Vector(0, 0, 5.123752), App.Rotation())
sketch3.addGeometry(Part.Circle(Vector(34.1, 26.7, 0), Vector(0, 0, 1), 1.5), False)
sketch3.addGeometry(Part.Circle(Vector(34.1, -32.6, 0), Vector(0, 0, 1), 1.5), False)
sketch3.addGeometry(Part.Circle(Vector(-57.4, -32.6, 0), Vector(0, 0, 1), 1.5), False)
sketch3.addGeometry(Part.Circle(Vector(-57.4, 26.7, 0), Vector(0, 0, 1), 1.5), False)
sketch3.addConstraint(Sketcher.Constraint("Equal", 0, 1))
sketch3.addConstraint(Sketcher.Constraint("Equal", 1, 2))
sketch3.addConstraint(Sketcher.Constraint("Equal", 2, 3))
sketch3.addConstraint(Sketcher.Constraint("Horizontal", 1, 3, 2, 3))
sketch3.addConstraint(Sketcher.Constraint("Horizontal", 0, 3, 3, 3))
sketch3.addConstraint(Sketcher.Constraint("Vertical", 0, 3, 1, 3))
sketch3.addConstraint(Sketcher.Constraint("Diameter", 0, Q("0.12 in")))
sketch3.addConstraint(Sketcher.Constraint("DistanceY", 1, 3, 0, 3, Q("59.3387 mm")))
sketch3.addConstraint(Sketcher.Constraint("DistanceX", 2, 3, 1, 3, Q("91.4899 mm")))
sketch3.addConstraint(Sketcher.Constraint("DistanceX", -1, 1, 0, 3, Q("34.084893 mm")))
sketch3.addConstraint(Sketcher.Constraint("DistanceY", -1, 1, 0, 3, Q("26.697694 mm")))
sketch3.addConstraint(Sketcher.Constraint("DistanceX", 3, 3, -1, 1, Q("57.404932 mm")))
sketch3.setExpression("Constraints[6]", "Params.sketch3_diameter")
pocket2 = body.newObject("PartDesign::Pocket", "Pocket001")
pocket2.Profile = sketch3
pocket2.Type = "ThroughAll"
pocket2.Reversed = True

sketch4 = body.newObject("Sketcher::SketchObject", "Sketch003")
sketch4.AttachmentSupport = (doc.getObject("XY_Plane"), [""])
sketch4.MapMode = "FlatFace"
sketch4.AttachmentOffset = App.Placement(Vector(0, 0, 5.123752), App.Rotation())
add_polygon(sketch4, [(-0.7, 18.1), (-0.7, 12.4), (-14.4, 12.4), (-14.4, 18.1)])
add_polygon(sketch4, [(-31.7, 25.3), (-31.7, 18.1), (-35.9, 18.1), (-35.9, 25.3)])
sketch4.addConstraint(Sketcher.Constraint("Vertical", 0))
sketch4.addConstraint(Sketcher.Constraint("Horizontal", 1))
sketch4.addConstraint(Sketcher.Constraint("Vertical", 2))
sketch4.addConstraint(Sketcher.Constraint("Horizontal", 3))
sketch4.addConstraint(Sketcher.Constraint("Vertical", 4))
sketch4.addConstraint(Sketcher.Constraint("Horizontal", 5))
sketch4.addConstraint(Sketcher.Constraint("Vertical", 6))
sketch4.addConstraint(Sketcher.Constraint("Horizontal", 7))
sketch4.addConstraint(Sketcher.Constraint("Horizontal", 3, 2, 4, 2))
sketch4.addConstraint(Sketcher.Constraint("DistanceX", 1, 2, 1, 1, Q("13.7159 mm")))
sketch4.addConstraint(Sketcher.Constraint("DistanceX", 5, 2, 5, 1, Q("4.1917 mm")))
sketch4.addConstraint(Sketcher.Constraint("DistanceY", 0, 2, 0, 1, Q("5.7149 mm")))
sketch4.addConstraint(Sketcher.Constraint("DistanceY", 4, 2, 4, 1, Q("7.175 mm")))
sketch4.addConstraint(Sketcher.Constraint("DistanceX", 4, 2, 2, 2, Q("17.2953 mm")))
sketch4.addConstraint(Sketcher.Constraint("DistanceX", 0, 2, -1, 1, Q("0.677107 mm")))
sketch4.addConstraint(Sketcher.Constraint("DistanceY", -1, 1, 0, 2, Q("12.372094 mm")))
pocket3 = body.newObject("PartDesign::Pocket", "Pocket002")
pocket3.Profile = sketch4
pocket3.Type = "ThroughAll"
pocket3.Reversed = True

sketch5 = body.newObject("Sketcher::SketchObject", "Sketch004")
sketch5.AttachmentSupport = (doc.getObject("XY_Plane"), [""])
sketch5.MapMode = "FlatFace"
sketch5.AttachmentOffset = App.Placement(Vector(0, 0, 5.123752), App.Rotation())
add_polygon(sketch5, [(-42.8, 24.1), (-42.8, 22.7), (-55.5, 22.7), (-55.5, 24.1)])
sketch5.addConstraint(Sketcher.Constraint("Vertical", 0))
sketch5.addConstraint(Sketcher.Constraint("Horizontal", 1))
sketch5.addConstraint(Sketcher.Constraint("Vertical", 2))
sketch5.addConstraint(Sketcher.Constraint("Horizontal", 3))
sketch5.addConstraint(Sketcher.Constraint("DistanceX", 1, 2, 1, 1, Q("0.5 in")))
sketch5.addConstraint(Sketcher.Constraint("DistanceY", 0, 2, 0, 1, Q("0.055 in")))
sketch5.addConstraint(Sketcher.Constraint("DistanceX", 0, 2, -1, 1, Q("42.825307 mm")))
sketch5.addConstraint(Sketcher.Constraint("DistanceY", -1, 1, 0, 2, Q("22.671294 mm")))
sketch5.setExpression("Constraints[8]", "Params.sketch5_width")
sketch5.setExpression("Constraints[9]", "Params.sketch5_height")
pad2 = body.newObject("PartDesign::Pad", "Pad001")
pad2.Profile = sketch5
pad2.setExpression("Length", "Params.pad2_length")

doc.recompute()
